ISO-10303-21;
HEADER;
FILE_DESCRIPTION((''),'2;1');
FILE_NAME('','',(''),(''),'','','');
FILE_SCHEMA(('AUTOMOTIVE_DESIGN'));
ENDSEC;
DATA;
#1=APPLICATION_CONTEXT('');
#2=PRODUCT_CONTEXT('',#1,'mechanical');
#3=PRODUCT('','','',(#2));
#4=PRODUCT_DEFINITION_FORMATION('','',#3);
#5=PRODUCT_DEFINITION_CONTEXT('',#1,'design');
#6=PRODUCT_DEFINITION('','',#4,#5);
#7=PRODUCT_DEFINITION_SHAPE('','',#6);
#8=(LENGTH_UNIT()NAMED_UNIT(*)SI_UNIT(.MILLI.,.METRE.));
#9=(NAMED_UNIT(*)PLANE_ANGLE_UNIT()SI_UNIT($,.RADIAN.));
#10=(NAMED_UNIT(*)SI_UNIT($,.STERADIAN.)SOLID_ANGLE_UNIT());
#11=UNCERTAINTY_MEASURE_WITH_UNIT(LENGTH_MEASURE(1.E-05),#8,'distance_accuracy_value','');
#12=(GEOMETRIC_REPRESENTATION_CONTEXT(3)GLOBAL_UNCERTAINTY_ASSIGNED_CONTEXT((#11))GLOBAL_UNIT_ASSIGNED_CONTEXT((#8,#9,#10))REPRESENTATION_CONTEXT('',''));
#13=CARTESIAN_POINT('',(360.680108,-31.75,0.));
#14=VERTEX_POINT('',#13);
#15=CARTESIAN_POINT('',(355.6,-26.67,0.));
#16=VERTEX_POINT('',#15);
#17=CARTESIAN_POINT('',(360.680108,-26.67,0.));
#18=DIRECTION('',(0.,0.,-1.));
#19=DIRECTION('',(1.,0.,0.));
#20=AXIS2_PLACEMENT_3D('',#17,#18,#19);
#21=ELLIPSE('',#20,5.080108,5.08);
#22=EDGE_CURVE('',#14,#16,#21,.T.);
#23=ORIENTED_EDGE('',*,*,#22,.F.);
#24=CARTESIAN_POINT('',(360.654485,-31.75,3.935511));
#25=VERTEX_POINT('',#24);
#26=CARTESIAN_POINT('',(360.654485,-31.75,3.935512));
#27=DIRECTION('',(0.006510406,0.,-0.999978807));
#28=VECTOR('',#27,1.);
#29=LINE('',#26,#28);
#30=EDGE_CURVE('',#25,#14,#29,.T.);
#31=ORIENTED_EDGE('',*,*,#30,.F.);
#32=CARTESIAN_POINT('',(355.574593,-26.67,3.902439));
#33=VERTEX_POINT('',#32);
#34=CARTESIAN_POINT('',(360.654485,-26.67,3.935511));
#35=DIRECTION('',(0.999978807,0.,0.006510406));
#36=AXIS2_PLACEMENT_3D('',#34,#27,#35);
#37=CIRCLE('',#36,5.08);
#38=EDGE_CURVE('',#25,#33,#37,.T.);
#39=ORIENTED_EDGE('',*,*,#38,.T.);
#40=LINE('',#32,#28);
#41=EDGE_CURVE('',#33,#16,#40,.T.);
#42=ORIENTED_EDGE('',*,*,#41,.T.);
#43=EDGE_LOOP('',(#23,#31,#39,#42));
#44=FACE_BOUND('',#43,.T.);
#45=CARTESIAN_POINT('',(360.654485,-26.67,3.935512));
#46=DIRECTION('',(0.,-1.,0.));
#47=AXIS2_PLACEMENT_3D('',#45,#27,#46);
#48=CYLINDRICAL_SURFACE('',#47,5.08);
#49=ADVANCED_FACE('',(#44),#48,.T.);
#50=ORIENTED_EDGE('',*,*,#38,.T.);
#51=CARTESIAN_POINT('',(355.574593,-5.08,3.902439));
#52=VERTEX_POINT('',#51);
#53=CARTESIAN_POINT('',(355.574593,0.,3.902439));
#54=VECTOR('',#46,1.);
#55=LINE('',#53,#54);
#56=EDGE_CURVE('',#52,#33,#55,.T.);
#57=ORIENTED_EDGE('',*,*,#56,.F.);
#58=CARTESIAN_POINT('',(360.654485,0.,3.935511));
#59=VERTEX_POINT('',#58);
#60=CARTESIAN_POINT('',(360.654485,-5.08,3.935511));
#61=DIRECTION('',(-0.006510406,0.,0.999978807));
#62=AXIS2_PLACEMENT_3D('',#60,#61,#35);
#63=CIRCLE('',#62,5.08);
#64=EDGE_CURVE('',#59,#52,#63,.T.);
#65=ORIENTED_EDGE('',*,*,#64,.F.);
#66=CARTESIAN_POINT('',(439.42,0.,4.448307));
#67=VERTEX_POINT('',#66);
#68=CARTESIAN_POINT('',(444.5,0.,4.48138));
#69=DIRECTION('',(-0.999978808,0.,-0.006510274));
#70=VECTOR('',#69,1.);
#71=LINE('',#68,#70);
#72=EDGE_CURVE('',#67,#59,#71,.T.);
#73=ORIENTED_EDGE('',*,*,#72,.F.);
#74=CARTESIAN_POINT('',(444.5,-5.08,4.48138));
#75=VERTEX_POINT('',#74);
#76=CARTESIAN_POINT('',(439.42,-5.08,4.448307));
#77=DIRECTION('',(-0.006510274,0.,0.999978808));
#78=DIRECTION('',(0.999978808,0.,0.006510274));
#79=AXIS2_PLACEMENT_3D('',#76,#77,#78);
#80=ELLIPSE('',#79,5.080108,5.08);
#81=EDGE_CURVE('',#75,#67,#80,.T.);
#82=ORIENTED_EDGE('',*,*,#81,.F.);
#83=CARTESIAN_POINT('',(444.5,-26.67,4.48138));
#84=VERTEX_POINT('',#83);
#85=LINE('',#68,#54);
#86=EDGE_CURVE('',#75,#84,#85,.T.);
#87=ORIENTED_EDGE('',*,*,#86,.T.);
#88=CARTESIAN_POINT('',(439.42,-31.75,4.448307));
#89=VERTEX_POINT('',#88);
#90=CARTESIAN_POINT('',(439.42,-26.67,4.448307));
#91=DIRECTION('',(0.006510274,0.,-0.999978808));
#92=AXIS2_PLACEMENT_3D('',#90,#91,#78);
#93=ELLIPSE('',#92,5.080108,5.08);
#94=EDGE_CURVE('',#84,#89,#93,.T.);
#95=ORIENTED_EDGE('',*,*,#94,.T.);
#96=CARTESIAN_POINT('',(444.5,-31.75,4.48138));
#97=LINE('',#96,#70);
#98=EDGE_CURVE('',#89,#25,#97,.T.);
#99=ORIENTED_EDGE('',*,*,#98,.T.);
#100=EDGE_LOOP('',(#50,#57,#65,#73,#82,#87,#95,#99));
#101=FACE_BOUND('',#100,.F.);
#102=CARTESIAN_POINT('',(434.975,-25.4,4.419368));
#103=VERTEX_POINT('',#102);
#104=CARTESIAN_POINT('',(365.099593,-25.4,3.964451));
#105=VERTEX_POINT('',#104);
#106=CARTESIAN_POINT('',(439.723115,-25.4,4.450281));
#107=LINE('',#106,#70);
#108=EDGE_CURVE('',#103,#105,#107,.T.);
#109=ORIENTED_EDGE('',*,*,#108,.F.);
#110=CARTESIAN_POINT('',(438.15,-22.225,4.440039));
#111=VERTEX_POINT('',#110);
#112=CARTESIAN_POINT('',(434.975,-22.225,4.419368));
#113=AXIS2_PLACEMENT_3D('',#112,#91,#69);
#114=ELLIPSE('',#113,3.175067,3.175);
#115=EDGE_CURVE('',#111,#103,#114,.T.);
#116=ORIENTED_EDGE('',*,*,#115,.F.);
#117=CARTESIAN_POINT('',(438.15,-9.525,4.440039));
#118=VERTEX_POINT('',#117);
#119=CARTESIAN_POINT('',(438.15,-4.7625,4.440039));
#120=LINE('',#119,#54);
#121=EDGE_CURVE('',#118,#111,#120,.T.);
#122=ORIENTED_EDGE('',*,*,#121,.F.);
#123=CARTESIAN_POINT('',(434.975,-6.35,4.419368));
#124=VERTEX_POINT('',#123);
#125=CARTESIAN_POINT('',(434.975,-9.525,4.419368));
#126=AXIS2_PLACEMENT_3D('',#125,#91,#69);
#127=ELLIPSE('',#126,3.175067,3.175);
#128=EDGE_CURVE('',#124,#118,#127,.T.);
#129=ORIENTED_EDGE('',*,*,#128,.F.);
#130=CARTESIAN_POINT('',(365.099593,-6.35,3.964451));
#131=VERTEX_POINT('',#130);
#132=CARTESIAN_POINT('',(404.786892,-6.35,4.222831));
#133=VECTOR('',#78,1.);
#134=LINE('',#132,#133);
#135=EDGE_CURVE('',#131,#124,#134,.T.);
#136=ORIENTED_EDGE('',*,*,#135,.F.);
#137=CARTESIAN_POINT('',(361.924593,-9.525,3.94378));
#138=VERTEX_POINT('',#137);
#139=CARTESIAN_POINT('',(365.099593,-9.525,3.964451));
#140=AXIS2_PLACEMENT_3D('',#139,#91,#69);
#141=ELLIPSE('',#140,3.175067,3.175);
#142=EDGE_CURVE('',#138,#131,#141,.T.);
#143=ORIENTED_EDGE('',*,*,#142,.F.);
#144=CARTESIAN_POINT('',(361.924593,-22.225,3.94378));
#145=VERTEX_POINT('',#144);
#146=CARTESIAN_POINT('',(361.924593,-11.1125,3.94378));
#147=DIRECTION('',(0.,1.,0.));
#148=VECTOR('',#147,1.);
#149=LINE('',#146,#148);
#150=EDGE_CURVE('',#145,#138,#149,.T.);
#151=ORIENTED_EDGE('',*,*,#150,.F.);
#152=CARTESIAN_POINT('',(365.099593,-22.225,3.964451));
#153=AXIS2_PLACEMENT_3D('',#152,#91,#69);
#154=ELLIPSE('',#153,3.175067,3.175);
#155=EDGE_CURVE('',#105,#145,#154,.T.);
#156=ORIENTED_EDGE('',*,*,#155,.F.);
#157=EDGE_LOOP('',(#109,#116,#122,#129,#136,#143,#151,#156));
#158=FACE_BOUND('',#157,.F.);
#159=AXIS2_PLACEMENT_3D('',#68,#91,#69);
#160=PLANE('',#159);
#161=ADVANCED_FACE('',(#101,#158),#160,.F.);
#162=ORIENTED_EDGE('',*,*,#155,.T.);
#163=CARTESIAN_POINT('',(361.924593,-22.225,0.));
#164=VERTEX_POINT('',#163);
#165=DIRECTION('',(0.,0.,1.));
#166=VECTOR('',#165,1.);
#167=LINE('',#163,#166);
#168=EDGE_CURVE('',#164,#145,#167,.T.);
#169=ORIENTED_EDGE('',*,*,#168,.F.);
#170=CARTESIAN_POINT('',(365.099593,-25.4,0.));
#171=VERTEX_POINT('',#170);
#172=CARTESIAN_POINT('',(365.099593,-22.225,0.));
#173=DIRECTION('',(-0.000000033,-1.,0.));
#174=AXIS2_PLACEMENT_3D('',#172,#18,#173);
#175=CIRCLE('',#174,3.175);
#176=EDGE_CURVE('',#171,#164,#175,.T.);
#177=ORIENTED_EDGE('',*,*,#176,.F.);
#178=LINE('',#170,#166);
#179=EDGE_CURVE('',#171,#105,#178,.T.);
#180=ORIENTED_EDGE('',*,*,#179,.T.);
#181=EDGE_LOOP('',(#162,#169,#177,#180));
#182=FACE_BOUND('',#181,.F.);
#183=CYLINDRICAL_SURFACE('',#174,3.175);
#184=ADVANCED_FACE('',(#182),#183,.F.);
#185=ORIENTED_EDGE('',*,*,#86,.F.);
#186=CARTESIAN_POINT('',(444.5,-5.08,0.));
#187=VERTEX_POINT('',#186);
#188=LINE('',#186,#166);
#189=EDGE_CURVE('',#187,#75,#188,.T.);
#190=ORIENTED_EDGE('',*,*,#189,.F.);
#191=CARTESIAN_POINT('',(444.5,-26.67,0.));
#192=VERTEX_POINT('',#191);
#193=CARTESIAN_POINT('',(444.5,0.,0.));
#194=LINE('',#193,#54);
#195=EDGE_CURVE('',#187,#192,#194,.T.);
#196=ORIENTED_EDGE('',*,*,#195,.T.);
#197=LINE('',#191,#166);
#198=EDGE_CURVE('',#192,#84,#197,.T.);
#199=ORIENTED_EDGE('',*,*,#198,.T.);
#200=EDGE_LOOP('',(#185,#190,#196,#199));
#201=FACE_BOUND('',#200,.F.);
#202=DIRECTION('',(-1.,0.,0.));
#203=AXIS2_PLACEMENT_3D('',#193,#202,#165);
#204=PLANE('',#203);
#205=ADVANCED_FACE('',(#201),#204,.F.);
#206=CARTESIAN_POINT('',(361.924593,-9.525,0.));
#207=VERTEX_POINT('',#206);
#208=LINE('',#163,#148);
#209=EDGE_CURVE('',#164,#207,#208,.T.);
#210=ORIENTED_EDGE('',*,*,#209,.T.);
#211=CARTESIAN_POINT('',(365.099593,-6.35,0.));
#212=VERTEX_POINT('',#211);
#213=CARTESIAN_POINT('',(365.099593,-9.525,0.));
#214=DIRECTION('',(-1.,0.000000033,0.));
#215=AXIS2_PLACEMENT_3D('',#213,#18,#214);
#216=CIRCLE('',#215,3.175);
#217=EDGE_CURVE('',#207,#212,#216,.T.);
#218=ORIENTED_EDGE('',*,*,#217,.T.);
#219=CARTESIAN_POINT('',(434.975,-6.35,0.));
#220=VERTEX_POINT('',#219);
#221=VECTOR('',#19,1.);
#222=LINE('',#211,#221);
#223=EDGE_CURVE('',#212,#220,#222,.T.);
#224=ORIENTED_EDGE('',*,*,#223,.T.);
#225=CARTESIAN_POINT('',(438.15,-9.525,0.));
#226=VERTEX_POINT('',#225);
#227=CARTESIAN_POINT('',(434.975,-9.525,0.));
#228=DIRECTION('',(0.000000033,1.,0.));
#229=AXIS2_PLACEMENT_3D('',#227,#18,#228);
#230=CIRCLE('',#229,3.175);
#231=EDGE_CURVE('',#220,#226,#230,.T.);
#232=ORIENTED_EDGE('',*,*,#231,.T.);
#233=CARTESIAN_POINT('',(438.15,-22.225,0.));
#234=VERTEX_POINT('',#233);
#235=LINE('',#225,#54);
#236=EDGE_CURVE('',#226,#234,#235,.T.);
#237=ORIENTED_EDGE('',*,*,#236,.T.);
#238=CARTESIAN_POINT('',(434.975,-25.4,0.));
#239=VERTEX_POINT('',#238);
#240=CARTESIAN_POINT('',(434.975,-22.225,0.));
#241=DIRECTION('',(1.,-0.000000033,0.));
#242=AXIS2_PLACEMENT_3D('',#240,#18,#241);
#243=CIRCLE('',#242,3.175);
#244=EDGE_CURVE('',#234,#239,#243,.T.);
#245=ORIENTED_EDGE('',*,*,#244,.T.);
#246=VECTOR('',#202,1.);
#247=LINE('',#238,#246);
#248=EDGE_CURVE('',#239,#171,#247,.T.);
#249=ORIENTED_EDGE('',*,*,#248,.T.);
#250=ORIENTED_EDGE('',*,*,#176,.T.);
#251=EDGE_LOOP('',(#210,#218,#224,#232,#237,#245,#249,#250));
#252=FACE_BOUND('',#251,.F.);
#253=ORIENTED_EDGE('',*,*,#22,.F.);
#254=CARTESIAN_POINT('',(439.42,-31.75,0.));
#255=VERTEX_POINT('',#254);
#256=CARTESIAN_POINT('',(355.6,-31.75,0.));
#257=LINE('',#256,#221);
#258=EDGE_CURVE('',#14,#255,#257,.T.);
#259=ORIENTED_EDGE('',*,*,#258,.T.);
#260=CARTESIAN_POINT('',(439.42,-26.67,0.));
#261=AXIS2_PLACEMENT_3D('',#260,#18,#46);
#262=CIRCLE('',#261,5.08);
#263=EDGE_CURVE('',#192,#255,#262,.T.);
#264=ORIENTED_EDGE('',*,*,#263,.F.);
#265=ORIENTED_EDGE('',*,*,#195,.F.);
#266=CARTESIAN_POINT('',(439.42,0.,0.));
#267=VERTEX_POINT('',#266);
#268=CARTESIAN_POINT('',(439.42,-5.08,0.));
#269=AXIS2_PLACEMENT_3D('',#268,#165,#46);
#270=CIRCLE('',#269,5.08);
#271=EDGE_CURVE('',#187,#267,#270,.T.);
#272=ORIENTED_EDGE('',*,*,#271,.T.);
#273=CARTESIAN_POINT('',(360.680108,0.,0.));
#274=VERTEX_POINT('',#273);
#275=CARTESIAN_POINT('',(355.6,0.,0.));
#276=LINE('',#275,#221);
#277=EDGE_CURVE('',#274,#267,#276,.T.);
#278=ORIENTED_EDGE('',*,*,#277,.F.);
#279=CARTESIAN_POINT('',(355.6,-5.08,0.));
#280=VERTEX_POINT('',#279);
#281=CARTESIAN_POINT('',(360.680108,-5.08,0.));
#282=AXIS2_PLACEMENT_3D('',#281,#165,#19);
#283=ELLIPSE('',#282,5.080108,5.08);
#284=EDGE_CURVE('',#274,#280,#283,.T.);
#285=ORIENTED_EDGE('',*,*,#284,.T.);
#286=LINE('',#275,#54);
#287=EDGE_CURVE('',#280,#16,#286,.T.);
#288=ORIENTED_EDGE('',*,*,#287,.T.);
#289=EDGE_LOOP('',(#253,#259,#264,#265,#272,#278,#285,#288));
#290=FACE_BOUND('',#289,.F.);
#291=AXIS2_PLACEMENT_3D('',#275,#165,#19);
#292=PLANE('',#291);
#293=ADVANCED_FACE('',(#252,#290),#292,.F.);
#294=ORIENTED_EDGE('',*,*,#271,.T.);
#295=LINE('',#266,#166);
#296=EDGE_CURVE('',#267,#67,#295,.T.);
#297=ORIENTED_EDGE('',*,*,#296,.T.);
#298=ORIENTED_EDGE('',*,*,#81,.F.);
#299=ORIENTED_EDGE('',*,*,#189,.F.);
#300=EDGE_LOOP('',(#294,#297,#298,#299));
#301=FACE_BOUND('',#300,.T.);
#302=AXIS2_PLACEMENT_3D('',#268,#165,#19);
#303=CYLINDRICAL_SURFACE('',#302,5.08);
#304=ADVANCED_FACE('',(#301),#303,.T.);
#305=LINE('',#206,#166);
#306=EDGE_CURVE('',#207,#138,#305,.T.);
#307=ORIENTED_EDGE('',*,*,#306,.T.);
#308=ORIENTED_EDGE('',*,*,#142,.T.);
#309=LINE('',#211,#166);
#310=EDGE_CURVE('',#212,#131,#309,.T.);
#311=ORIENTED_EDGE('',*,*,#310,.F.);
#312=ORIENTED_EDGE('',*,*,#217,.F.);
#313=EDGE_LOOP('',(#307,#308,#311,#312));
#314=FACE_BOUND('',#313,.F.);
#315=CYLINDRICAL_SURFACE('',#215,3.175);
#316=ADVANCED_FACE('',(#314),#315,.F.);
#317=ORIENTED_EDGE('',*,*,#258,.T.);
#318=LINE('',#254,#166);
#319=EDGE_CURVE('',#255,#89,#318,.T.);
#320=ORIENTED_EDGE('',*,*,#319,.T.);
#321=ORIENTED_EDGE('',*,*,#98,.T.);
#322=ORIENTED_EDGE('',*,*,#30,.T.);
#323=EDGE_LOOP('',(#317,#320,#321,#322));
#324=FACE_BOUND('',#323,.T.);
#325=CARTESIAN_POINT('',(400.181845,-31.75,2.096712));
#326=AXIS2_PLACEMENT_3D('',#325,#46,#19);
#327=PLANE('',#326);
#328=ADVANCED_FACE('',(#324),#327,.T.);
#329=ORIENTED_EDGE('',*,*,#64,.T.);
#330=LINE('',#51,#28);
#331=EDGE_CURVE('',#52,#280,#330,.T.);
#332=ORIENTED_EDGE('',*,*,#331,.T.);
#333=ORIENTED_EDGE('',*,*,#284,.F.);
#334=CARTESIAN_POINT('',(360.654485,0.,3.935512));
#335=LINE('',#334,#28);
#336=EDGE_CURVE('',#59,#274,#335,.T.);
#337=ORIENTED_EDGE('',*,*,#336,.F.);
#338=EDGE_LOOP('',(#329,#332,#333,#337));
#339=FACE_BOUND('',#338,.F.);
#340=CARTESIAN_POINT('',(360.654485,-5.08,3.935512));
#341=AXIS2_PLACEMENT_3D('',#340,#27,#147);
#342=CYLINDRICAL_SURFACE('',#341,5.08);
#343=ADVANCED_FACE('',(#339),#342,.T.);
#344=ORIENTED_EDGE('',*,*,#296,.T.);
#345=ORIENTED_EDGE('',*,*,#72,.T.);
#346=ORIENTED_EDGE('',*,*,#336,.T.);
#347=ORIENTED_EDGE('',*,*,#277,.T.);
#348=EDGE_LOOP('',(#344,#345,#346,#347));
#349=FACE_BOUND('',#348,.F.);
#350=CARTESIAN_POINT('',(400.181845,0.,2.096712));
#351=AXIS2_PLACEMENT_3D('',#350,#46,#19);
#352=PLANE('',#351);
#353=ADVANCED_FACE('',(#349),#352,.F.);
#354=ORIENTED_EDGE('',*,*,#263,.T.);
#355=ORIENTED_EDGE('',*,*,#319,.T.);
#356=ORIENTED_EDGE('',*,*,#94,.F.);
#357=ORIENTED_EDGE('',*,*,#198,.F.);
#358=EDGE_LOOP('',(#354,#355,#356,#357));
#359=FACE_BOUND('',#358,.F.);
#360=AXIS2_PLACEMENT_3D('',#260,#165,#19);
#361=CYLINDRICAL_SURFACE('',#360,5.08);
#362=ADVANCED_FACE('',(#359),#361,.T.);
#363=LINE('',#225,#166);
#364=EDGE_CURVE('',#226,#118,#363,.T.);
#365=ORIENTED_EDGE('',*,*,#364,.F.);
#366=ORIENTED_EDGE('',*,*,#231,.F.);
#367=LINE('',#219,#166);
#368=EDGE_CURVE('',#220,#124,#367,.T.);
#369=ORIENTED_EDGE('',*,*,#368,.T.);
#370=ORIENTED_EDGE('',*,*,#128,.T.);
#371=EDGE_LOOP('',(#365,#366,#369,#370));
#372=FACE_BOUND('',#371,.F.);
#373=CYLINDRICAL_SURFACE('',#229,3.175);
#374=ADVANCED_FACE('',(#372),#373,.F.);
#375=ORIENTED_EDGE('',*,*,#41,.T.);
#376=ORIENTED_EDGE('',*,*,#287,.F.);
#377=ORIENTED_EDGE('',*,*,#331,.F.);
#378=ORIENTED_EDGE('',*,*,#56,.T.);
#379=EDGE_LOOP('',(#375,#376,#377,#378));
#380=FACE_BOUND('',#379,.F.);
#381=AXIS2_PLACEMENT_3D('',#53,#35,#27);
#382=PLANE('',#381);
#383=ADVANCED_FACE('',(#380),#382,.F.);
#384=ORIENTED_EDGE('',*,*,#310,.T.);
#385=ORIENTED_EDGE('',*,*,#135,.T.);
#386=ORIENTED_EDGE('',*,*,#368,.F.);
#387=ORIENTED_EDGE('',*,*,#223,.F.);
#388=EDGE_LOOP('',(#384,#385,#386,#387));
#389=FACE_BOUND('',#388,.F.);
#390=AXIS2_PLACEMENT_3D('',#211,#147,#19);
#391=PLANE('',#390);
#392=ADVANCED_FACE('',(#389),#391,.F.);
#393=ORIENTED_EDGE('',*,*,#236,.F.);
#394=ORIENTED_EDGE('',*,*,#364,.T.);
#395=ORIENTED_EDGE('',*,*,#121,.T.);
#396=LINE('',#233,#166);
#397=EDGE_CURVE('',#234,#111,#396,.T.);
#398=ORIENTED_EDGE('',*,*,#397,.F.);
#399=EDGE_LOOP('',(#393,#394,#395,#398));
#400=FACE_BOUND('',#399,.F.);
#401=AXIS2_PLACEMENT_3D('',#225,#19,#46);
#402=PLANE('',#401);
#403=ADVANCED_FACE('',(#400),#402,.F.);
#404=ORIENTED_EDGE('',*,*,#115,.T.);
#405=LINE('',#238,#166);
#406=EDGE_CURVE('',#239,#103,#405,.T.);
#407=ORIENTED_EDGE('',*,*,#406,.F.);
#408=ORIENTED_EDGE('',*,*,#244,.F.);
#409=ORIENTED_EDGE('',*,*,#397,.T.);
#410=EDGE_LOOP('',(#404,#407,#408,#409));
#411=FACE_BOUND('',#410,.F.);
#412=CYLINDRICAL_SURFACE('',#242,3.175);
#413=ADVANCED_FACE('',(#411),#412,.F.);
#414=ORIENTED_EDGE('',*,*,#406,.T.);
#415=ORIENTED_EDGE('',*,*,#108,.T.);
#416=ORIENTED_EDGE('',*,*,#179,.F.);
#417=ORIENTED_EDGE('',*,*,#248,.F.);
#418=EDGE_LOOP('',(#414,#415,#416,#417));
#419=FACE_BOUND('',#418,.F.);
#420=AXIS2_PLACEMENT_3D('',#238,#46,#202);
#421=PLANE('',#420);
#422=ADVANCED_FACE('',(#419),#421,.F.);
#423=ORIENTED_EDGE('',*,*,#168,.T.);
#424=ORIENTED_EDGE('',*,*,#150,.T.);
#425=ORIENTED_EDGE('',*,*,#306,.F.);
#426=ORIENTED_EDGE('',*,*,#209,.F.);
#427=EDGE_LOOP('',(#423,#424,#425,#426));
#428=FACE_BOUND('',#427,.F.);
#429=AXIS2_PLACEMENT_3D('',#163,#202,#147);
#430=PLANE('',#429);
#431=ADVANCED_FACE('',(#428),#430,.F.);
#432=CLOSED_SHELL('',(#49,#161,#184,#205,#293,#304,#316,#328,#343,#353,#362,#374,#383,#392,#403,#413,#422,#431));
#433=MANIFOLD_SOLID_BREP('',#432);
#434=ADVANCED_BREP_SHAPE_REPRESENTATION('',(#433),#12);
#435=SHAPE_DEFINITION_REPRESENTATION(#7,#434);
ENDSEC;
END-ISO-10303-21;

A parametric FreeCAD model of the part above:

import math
import FreeCAD as App
import Part
import Sketcher
Q = App.Units.Quantity


def edges_at(feature, points):
    """Names of the edges that pass closest to the given points."""
    edges = feature.Shape.Edges
    near = lambda p: min(range(len(edges)), key=lambda i: edges[i].distToShape(Part.Vertex(*p))[0])
    return sorted({f"Edge{near(p) + 1}" for p in points})

doc = App.newDocument("Part")
body = doc.addObject("PartDesign::Body", "Body")

# Sketch on XZ plane
sketch1 = body.newObject("Sketcher::SketchObject", "Sketch")
sketch1.AttachmentSupport = (doc.getObject("XZ_Plane"), [""])
sketch1.MapMode = "FlatFace"
sketch1.addGeometry([
    Part.LineSegment(App.Vector(444.5, 0, 0), App.Vector(444.5, 4.48138, 0)),
    Part.LineSegment(App.Vector(444.5, 4.48138, 0), App.Vector(355.574593, 3.902439, 0)),
    Part.LineSegment(App.Vector(355.574593, 3.902439, 0), App.Vector(355.6, 0, 0)),
    Part.LineSegment(App.Vector(355.6, 0, 0), App.Vector(444.5, 0, 0)),
], False)
sketch1.addConstraint([
    Sketcher.Constraint("Coincident", 0, 2, 1, 1),
    Sketcher.Constraint("Coincident", 1, 2, 2, 1),
    Sketcher.Constraint("Coincident", 2, 2, 3, 1),
    Sketcher.Constraint("Coincident", 3, 2, 0, 1),
    Sketcher.Constraint("Vertical", 0),
    Sketcher.Constraint("Horizontal", 3),
    Sketcher.Constraint("PointOnObject", 2, 2, -1),
    Sketcher.Constraint("DistanceX", 3, 1, 3, 2, Q("3.5 in")),
    Sketcher.Constraint("DistanceX", -1, 1, 2, 2, Q("14 in")),
    Sketcher.Constraint("DistanceY", 0, 1, 0, 2, Q("4.48138 mm")),
    Sketcher.Constraint("Distance", 1, Q("88.927292 mm")),
    Sketcher.Constraint("Distance", 2, Q("3.902522 mm")),
])
pad1 = body.newObject("PartDesign::Pad", "Pad")
pad1.Profile = sketch1
pad1.Length = Q("1.25 in")

# Sketch on XY plane
sketch2 = body.newObject("Sketcher::SketchObject", "Sketch001")
sketch2.AttachmentSupport = (doc.getObject("XY_Plane"), [""])
sketch2.MapMode = "FlatFace"
sketch2.addGeometry([
    Part.LineSegment(App.Vector(435, -25.4, 0), App.Vector(365.1, -25.4, 0)),  # 0
    Part.ArcOfCircle(Part.Circle(App.Vector(365.1, -22.2, 0), App.Vector(0, 0, 1), 3.2), math.radians(-180), math.radians(-90)),  # 1
    Part.LineSegment(App.Vector(361.9, -22.2, 0), App.Vector(361.9, -9.5, 0)),  # 2
    Part.ArcOfCircle(Part.Circle(App.Vector(365.1, -9.5, 0), App.Vector(0, 0, 1), 3.2), math.radians(90), math.radians(180)),  # 3
    Part.LineSegment(App.Vector(365.1, -6.3, 0), App.Vector(435, -6.3, 0)),  # 4
    Part.ArcOfCircle(Part.Circle(App.Vector(435, -9.5, 0), App.Vector(0, 0, 1), 3.2), math.radians(0), math.radians(90)),  # 5
    Part.LineSegment(App.Vector(438.1, -9.5, 0), App.Vector(438.1, -22.2, 0)),  # 6
    Part.ArcOfCircle(Part.Circle(App.Vector(435, -22.2, 0), App.Vector(0, 0, 1), 3.2), math.radians(-90), math.radians(0)),  # 7
], False)
sketch2.addConstraint([
    Sketcher.Constraint("Tangent", 0, 2, 1, 2),
    Sketcher.Constraint("Tangent", 1, 1, 2, 1),
    Sketcher.Constraint("Tangent", 2, 2, 3, 2),
    Sketcher.Constraint("Tangent", 3, 1, 4, 1),
    Sketcher.Constraint("Tangent", 4, 2, 5, 2),
    Sketcher.Constraint("Tangent", 5, 1, 6, 1),
    Sketcher.Constraint("Tangent", 6, 2, 7, 2),
    Sketcher.Constraint("Tangent", 7, 1, 0, 1),
    Sketcher.Constraint("Horizontal", 0),
    Sketcher.Constraint("Vertical", 2),
    Sketcher.Constraint("Horizontal", 4),
    Sketcher.Constraint("Vertical", 6),
    Sketcher.Constraint("Equal", 1, 3),
    Sketcher.Constraint("Equal", 3, 5),
    Sketcher.Constraint("Equal", 5, 7),
    Sketcher.Constraint("DistanceY", 2, 1, 2, 2, Q("0.5 in")),
    Sketcher.Constraint("DistanceY", 0, 2, -1, 1, Q("1 in")),
    Sketcher.Constraint("Radius", 1, Q("0.125 in")),
    Sketcher.Constraint("DistanceX", -1, 1, 5, 1, Q("17.25 in")),
    Sketcher.Constraint("DistanceX", 0, 2, 0, 1, Q("69.875407 mm")),
])
pocket1 = body.newObject("PartDesign::Pocket", "Pocket")
pocket1.Profile = sketch2
pocket1.Type = "ThroughAll"
pocket1.Reversed = True
doc.recompute()

fillet = body.newObject("PartDesign::Fillet", "Fillet")
fillet.Base = (pocket1, edges_at(pocket1, [
    (444.5, -31.75, 2.241),
    (355.587, -31.75, 1.951),
    (355.587, 0, 1.951),
    (444.5, 0, 2.241),
]))
fillet.Radius = Q("0.2 in")

doc.recompute()
